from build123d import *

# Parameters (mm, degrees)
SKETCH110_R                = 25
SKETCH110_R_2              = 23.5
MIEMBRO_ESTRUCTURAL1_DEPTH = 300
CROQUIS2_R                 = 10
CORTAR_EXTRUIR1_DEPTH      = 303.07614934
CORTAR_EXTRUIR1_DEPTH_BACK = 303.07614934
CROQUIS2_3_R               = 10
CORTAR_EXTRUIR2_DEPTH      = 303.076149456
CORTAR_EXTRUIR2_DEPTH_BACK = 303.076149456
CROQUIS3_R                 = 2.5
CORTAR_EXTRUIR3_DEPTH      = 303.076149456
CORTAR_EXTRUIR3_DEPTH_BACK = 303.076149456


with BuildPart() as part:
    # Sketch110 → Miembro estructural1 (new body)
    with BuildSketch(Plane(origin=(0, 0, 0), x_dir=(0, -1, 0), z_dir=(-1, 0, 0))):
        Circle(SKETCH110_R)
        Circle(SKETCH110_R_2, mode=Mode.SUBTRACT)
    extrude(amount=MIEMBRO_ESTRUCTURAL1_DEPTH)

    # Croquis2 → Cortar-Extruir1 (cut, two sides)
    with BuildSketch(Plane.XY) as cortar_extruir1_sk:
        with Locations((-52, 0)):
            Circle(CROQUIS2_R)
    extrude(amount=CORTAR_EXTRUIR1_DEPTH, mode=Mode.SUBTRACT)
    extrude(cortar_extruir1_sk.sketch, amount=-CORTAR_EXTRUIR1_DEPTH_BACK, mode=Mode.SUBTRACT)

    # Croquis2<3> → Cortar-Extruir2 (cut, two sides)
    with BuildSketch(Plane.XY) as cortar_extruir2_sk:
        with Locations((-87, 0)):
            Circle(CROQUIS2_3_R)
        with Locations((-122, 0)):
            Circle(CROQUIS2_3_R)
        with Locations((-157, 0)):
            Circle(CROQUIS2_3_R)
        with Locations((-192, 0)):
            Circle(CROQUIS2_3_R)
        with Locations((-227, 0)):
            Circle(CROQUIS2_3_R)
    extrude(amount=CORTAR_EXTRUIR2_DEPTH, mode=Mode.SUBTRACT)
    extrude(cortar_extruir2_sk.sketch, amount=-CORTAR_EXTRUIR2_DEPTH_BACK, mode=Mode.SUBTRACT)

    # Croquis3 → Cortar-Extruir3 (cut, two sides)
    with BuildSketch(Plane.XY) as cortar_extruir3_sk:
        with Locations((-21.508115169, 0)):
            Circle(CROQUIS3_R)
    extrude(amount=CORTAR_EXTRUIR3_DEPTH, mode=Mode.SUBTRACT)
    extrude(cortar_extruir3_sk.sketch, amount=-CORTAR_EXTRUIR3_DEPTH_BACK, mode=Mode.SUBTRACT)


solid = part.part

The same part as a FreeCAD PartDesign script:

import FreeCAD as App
import Part
import Sketcher

V = App.Vector

doc = App.newDocument("Part")
body = doc.addObject("PartDesign::Body", "Body")

# Sketch on YZ plane
sketch1 = body.newObject("Sketcher::SketchObject", "Sketch")
sketch1.AttachmentSupport = (doc.getObject("YZ_Plane"), [""])
sketch1.MapMode = "FlatFace"
sketch1.addGeometry([
    Part.Circle(V(0, 0, 0), V(0, 0, 1), 25),
    Part.Circle(V(0, 0, 0), V(0, 0, 1), 24),
], False)
sketch1.addConstraint([
    Sketcher.Constraint("Coincident", 0, 3, -1, 1),
    Sketcher.Constraint("Coincident", 1, 3, -1, 1),
    Sketcher.Constraint("Diameter", 0, 50.0),
    Sketcher.Constraint("Diameter", 1, 47.0),
])
pad1 = body.newObject("PartDesign::Pad", "Pad")
pad1.Profile = sketch1
pad1.Length = 300
pad1.Reversed = True

# Sketch on XY plane
sketch2 = body.newObject("Sketcher::SketchObject", "Sketch001")
sketch2.AttachmentSupport = (doc.getObject("XY_Plane"), [""])
sketch2.MapMode = "FlatFace"
sketch2.addGeometry(Part.Circle(V(-52, 0, 0), V(0, 0, 1), 10), False)
sketch2.addConstraint([
    Sketcher.Constraint("PointOnObject", 0, 3, -1),
    Sketcher.Constraint("Diameter", 0, 20.0),
    Sketcher.Constraint("DistanceX", 0, 3, -1, 1, 52.0),
])
pocket1 = body.newObject("PartDesign::Pocket", "Pocket")
pocket1.Profile = sketch2
pocket1.Type = "ThroughAll"
pocket1.Midplane = True

# Sketch on XY plane
sketch3 = body.newObject("Sketcher::SketchObject", "Sketch002")
sketch3.AttachmentSupport = (doc.getObject("XY_Plane"), [""])
sketch3.MapMode = "FlatFace"
sketch3.addGeometry([
    Part.Circle(V(-87, 0, 0), V(0, 0, 1), 10),  # 0
    Part.Circle(V(-122, 0, 0), V(0, 0, 1), 10),  # 1
    Part.Circle(V(-157, 0, 0), V(0, 0, 1), 10),  # 2
    Part.Circle(V(-192, 0, 0), V(0, 0, 1), 10),  # 3
    Part.Circle(V(-227, 0, 0), V(0, 0, 1), 10),  # 4
], False)
sketch3.addConstraint([
    Sketcher.Constraint("Equal", 0, 1),
    Sketcher.Constraint("Equal", 1, 2),
    Sketcher.Constraint("Equal", 2, 3),
    Sketcher.Constraint("Equal", 3, 4),
    Sketcher.Constraint("PointOnObject", 0, 3, -1),
    Sketcher.Constraint("PointOnObject", 1, 3, -1),
    Sketcher.Constraint("PointOnObject", 2, 3, -1),
    Sketcher.Constraint("PointOnObject", 3, 3, -1),
    Sketcher.Constraint("PointOnObject", 4, 3, -1),
    Sketcher.Constraint("Diameter", 0, 20.0),
    Sketcher.Constraint("DistanceX", 0, 3, -1, 1, 87.0),
    Sketcher.Constraint("DistanceX", 1, 3, -1, 1, 122.0),
    Sketcher.Constraint("DistanceX", 2, 3, -1, 1, 157.0),
    Sketcher.Constraint("DistanceX", 3, 3, -1, 1, 192.0),
    Sketcher.Constraint("DistanceX", 4, 3, -1, 1, 227.0),
])
pocket2 = body.newObject("PartDesign::Pocket", "Pocket001")
pocket2.Profile = sketch3
pocket2.Type = "ThroughAll"
pocket2.Midplane = True

# Sketch on XY plane
sketch4 = body.newObject("Sketcher::SketchObject", "Sketch003")
sketch4.AttachmentSupport = (doc.getObject("XY_Plane"), [""])
sketch4.MapMode = "FlatFace"
sketch4.addGeometry(Part.Circle(V(-21.5, 0, 0), V(0, 0, 1), 2.5), False)
sketch4.addConstraint([
    Sketcher.Constraint("PointOnObject", 0, 3, -1),
    Sketcher.Constraint("Diameter", 0, 5.0),
    Sketcher.Constraint("DistanceX", 0, 3, -1, 1, 21.508115),
])
pocket3 = body.newObject("PartDesign::Pocket", "Pocket002")
pocket3.Profile = sketch4
pocket3.Type = "ThroughAll"
pocket3.Midplane = True

doc.recompute()
